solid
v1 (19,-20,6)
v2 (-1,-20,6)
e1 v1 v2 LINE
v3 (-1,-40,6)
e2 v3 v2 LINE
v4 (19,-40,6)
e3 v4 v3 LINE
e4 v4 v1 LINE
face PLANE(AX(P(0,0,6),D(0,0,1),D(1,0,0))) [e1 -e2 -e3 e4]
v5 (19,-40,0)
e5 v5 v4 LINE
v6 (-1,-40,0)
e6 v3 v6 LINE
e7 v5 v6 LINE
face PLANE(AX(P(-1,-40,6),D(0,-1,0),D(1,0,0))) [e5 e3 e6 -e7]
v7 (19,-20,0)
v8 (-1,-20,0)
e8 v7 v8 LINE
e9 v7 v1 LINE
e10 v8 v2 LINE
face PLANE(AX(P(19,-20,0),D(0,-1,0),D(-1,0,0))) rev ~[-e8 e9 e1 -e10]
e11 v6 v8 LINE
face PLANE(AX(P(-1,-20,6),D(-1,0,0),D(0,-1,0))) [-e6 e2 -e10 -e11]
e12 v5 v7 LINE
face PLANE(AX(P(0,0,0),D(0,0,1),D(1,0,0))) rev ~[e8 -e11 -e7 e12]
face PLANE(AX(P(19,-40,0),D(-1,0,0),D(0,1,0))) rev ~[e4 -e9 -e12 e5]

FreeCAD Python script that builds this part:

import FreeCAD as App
import Part
import Sketcher
from FreeCAD import Vector

doc = App.newDocument("Part")
body = doc.addObject("PartDesign::Body", "Body")

# Sketch on XY plane
sketch1 = body.newObject("Sketcher::SketchObject", "Sketch")
sketch1.AttachmentSupport = (doc.getObject("XY_Plane"), [""])
sketch1.MapMode = "FlatFace"
sketch1.addGeometry([
    Part.LineSegment(Vector(19, -500, 0), Vector(19, -20, 0)),
    Part.LineSegment(Vector(19, -20, 0), Vector(-376, -20, 0)),
    Part.LineSegment(Vector(-376, -20, 0), Vector(-376, -500, 0)),
    Part.LineSegment(Vector(-376, -500, 0), Vector(19, -500, 0)),
], False)
sketch1.addConstraint([
    Sketcher.Constraint("Coincident", 0, 2, 1, 1),
    Sketcher.Constraint("Coincident", 1, 2, 2, 1),
    Sketcher.Constraint("Coincident", 2, 2, 3, 1),
    Sketcher.Constraint("Coincident", 3, 2, 0, 1),
    Sketcher.Constraint("Vertical", 0),
    Sketcher.Constraint("Horizontal", 1),
    Sketcher.Constraint("Vertical", 2),
    Sketcher.Constraint("Horizontal", 3),
    Sketcher.Constraint("DistanceX", 1, 2, 1, 1, 395.0),
    Sketcher.Constraint("DistanceY", 0, 1, 0, 2, 480.0),
    Sketcher.Constraint("DistanceX", -1, 1, 0, 2, 19.0),
    Sketcher.Constraint("DistanceY", 0, 2, -1, 1, 20.0),
])
pad1 = body.newObject("PartDesign::Pad", "Pad")
pad1.Profile = sketch1
pad1.Length = 6

# Sketch on XY plane
sketch2 = body.newObject("Sketcher::SketchObject", "Sketch001")
sketch2.AttachmentSupport = (doc.getObject("XY_Plane"), [""])
sketch2.MapMode = "FlatFace"
sketch2.AttachmentOffset = App.Placement(Vector(0, 0, 6), App.Rotation())
sketch2.addGeometry([
    Part.LineSegment(Vector(19, -500, 0), Vector(19, -40, 0)),  # 0
    Part.LineSegment(Vector(19, -40, 0), Vector(-1, -40, 0)),  # 1
    Part.LineSegment(Vector(-1, -40, 0), Vector(-1, -20, 0)),  # 2
    Part.LineSegment(Vector(-1, -20, 0), Vector(-376, -20, 0)),  # 3
    Part.LineSegment(Vector(-376, -20, 0), Vector(-376, -500, 0)),  # 4
    Part.LineSegment(Vector(-376, -500, 0), Vector(19, -500, 0)),  # 5
], False)
sketch2.addConstraint([
    Sketcher.Constraint("Coincident", 0, 2, 1, 1),
    Sketcher.Constraint("Coincident", 1, 2, 2, 1),
    Sketcher.Constraint("Coincident", 2, 2, 3, 1),
    Sketcher.Constraint("Coincident", 3, 2, 4, 1),
    Sketcher.Constraint("Coincident", 4, 2, 5, 1),
    Sketcher.Constraint("Coincident", 5, 2, 0, 1),
    Sketcher.Constraint("Vertical", 0),
    Sketcher.Constraint("Horizontal", 1),
    Sketcher.Constraint("Vertical", 2),
    Sketcher.Constraint("Horizontal", 3),
    Sketcher.Constraint("Vertical", 4),
    Sketcher.Constraint("Horizontal", 5),
    Sketcher.Constraint("Equal", 1, 2),
    Sketcher.Constraint("DistanceX", 1, 2, 1, 1, 20.0),
    Sketcher.Constraint("DistanceX", 3, 2, 3, 1, 375.0),
    Sketcher.Constraint("DistanceY", 0, 1, 0, 2, 460.0),
    Sketcher.Constraint("DistanceX", -1, 1, 0, 2, 19.0),
    Sketcher.Constraint("DistanceY", 0, 2, -1, 1, 40.0),
])
pocket1 = body.newObject("PartDesign::Pocket", "Pocket")
pocket1.Profile = sketch2
pocket1.Type = "UpToFirst"

doc.recompute()
